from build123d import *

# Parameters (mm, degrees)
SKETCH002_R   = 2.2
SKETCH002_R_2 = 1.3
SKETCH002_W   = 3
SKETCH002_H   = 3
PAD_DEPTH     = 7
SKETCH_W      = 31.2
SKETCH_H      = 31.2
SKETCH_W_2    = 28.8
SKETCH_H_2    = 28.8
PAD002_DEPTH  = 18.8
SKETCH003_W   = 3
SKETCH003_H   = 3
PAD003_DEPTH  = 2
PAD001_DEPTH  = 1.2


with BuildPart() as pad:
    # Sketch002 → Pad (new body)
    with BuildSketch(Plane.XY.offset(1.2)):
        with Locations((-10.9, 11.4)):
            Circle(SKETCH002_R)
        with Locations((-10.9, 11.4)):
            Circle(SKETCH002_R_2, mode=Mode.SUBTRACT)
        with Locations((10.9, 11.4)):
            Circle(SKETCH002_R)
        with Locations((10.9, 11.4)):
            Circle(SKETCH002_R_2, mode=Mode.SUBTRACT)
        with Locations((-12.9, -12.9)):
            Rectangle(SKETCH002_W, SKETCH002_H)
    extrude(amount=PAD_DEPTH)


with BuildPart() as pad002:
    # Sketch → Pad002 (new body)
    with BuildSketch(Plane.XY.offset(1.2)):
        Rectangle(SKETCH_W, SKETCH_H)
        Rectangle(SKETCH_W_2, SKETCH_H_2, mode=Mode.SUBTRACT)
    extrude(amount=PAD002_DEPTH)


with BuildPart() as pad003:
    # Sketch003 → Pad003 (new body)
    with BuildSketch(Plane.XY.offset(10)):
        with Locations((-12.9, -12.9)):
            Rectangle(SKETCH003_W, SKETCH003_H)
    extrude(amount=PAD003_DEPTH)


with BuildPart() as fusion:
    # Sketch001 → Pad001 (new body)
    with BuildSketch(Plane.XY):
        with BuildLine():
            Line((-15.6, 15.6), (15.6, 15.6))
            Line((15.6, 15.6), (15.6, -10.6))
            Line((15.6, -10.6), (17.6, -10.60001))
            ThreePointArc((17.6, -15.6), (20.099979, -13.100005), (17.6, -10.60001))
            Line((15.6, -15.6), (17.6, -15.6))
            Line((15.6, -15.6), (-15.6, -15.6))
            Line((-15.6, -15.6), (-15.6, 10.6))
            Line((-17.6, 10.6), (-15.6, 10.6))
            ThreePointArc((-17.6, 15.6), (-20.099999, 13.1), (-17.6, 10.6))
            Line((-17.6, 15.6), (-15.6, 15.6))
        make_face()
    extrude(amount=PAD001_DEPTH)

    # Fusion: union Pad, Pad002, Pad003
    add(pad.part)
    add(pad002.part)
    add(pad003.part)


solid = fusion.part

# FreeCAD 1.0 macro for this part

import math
import FreeCAD as App
import Part
import Sketcher

V = App.Vector
Q = App.Units.Quantity


def add_polygon(sketch, points):
    """Adds a closed chain of lines whose ends are joined by coincident constraints."""
    first, n = sketch.GeometryCount, len(points)
    for a, b in zip(points, points[1:] + points[:1]):
        sketch.addGeometry(Part.LineSegment(App.Vector(*a, 0), App.Vector(*b, 0)), False)
    for i in range(n):
        sketch.addConstraint(Sketcher.Constraint("Coincident", first + i, 2, first + (i + 1) % n, 1))

doc = App.newDocument("Part")
body = doc.addObject("PartDesign::Body", "Body")
body.AllowCompound = True

# Sketch on XY plane
sketch1 = body.newObject("Sketcher::SketchObject", "Sketch")
sketch1.AttachmentSupport = (doc.getObject("XY_Plane"), [""])
sketch1.MapMode = "FlatFace"
sketch1.AttachmentOffset = App.Placement(V(0, 0, 1.2), App.Rotation())
sketch1.addGeometry(Part.Circle(V(-10.9, 11.4, 0), V(0, 0, 1), 2.2), False)  # 0
sketch1.addGeometry(Part.Circle(V(-10.9, 11.4, 0), V(0, 0, 1), 1.3), False)  # 1
sketch1.addGeometry(Part.Circle(V(10.9, 11.4, 0), V(0, 0, 1), 2.2), False)  # 2
sketch1.addGeometry(Part.Circle(V(10.9, 11.4, 0), V(0, 0, 1), 1.3), False)  # 3
add_polygon(sketch1, [(-14.4, -11.4), (-14.4, -14.4), (-11.4, -14.4), (-11.4, -11.4)])  # lines 4-7
sketch1.addConstraint([
    Sketcher.Constraint("Vertical", 4),
    Sketcher.Constraint("Horizontal", 5),
    Sketcher.Constraint("Vertical", 6),
    Sketcher.Constraint("Horizontal", 7),
    Sketcher.Constraint("Coincident", 1, 3, 0, 3),
    Sketcher.Constraint("Coincident", 3, 3, 2, 3),
    Sketcher.Constraint("Equal", 0, 2),
    Sketcher.Constraint("Equal", 1, 3),
    Sketcher.Constraint("Symmetric", 0, 3, 2, 3, -2),
    Sketcher.Constraint("Equal", 7, 4),
    Sketcher.Constraint("Diameter", 0, Q("4.4 mm")),
    Sketcher.Constraint("Diameter", 1, Q("2.6 mm")),
    Sketcher.Constraint("DistanceX", 5, 1, 5, 2, Q("3 mm")),
    Sketcher.Constraint("DistanceX", 0, 3, -1, 1, Q("10.9 mm")),
    Sketcher.Constraint("DistanceY", -1, 1, 0, 3, Q("11.4 mm")),
    Sketcher.Constraint("DistanceX", 4, 2, -1, 1, Q("14.4 mm")),
    Sketcher.Constraint("DistanceY", 4, 2, -1, 1, Q("14.4 mm")),
])
pad1 = body.newObject("PartDesign::Pad", "Pad")
pad1.Profile = sketch1
pad1.Length = 7
body2 = doc.addObject("PartDesign::Body", "Body001")

# Sketch on XY plane
sketch2 = body2.newObject("Sketcher::SketchObject", "Sketch001")
sketch2.AttachmentSupport = (doc.getObject("XY_Plane001"), [""])
sketch2.MapMode = "FlatFace"
sketch2.AttachmentOffset = App.Placement(V(0, 0, 1.2), App.Rotation())
add_polygon(sketch2, [(-16, 16), (-16, -16), (16, -16), (16, 16)])  # lines 0-3
add_polygon(sketch2, [(14, -14), (-14, -14), (-14, 14), (14, 14)])  # lines 4-7
sketch2.addConstraint([
    Sketcher.Constraint("Vertical", 0),
    Sketcher.Constraint("Horizontal", 1),
    Sketcher.Constraint("Vertical", 2),
    Sketcher.Constraint("Horizontal", 3),
    Sketcher.Constraint("Horizontal", 4),
    Sketcher.Constraint("Vertical", 5),
    Sketcher.Constraint("Horizontal", 6),
    Sketcher.Constraint("Vertical", 7),
    Sketcher.Constraint("Symmetric", 0, 2, 2, 2, -1, 1),
    Sketcher.Constraint("Symmetric", 4, 2, 6, 2, -1, 1),
    Sketcher.Constraint("Equal", 3, 0),
    Sketcher.Constraint("Equal", 6, 5),
    Sketcher.Constraint("DistanceX", 1, 1, 1, 2, Q("31.2 mm")),
    Sketcher.Constraint("DistanceX", 4, 2, 4, 1, Q("28.8 mm")),
])
pad2 = body2.newObject("PartDesign::Pad", "Pad001")
pad2.Profile = sketch2
pad2.Length = 18.8
body3 = doc.addObject("PartDesign::Body", "Body002")

# Sketch on XY plane
sketch3 = body3.newObject("Sketcher::SketchObject", "Sketch002")
sketch3.AttachmentSupport = (doc.getObject("XY_Plane002"), [""])
sketch3.MapMode = "FlatFace"
sketch3.AttachmentOffset = App.Placement(V(0, 0, 10), App.Rotation())
add_polygon(sketch3, [(-14.4, -11.4), (-14.4, -14.4), (-11.4, -14.4), (-11.4, -11.4)])  # lines 0-3
sketch3.addConstraint([
    Sketcher.Constraint("Vertical", 0),
    Sketcher.Constraint("Horizontal", 1),
    Sketcher.Constraint("Vertical", 2),
    Sketcher.Constraint("Horizontal", 3),
    Sketcher.Constraint("Equal", 3, 0),
    Sketcher.Constraint("DistanceX", 1, 1, 1, 2, Q("3 mm")),
    Sketcher.Constraint("DistanceX", 0, 2, -1, 1, Q("14.4 mm")),
    Sketcher.Constraint("DistanceY", 0, 2, -1, 1, Q("14.4 mm")),
])
pad3 = body3.newObject("PartDesign::Pad", "Pad002")
pad3.Profile = sketch3
pad3.Length = 2
body4 = doc.addObject("PartDesign::Body", "Body003")

# Sketch on XY plane
sketch4 = body4.newObject("Sketcher::SketchObject", "Sketch003")
sketch4.AttachmentSupport = (doc.getObject("XY_Plane003"), [""])
sketch4.MapMode = "FlatFace"
sketch4.addGeometry([
    Part.LineSegment(V(15.6, -10.6, 0), V(15.6, 15.6, 0)),  # 0
    Part.LineSegment(V(15.6, 15.6, 0), V(-17.6, 15.6, 0)),  # 1
    Part.ArcOfCircle(Part.Circle(V(-17.6, 13.1, 0), V(0, 0, 1), 2.5), math.radians(90), math.radians(270)),  # 2
    Part.LineSegment(V(-17.6, 10.6, 0), V(-15.6, 10.6, 0)),  # 3
    Part.LineSegment(V(-15.6, 10.6, 0), V(-15.6, -15.6, 0)),  # 4
    Part.LineSegment(V(-15.6, -15.6, 0), V(17.6, -15.6, 0)),  # 5
    Part.ArcOfCircle(Part.Circle(V(17.6, -13.1, 0), V(0, 0, 1), 2.5), math.radians(-90), math.radians(90)),  # 6
    Part.LineSegment(V(17.6, -10.6, 0), V(15.6, -10.6, 0)),  # 7
], False)
sketch4.addConstraint([
    Sketcher.Constraint("Coincident", 0, 2, 1, 1),
    Sketcher.Constraint("Tangent", 1, 2, 2, 1),
    Sketcher.Constraint("Tangent", 2, 2, 3, 1),
    Sketcher.Constraint("Coincident", 3, 2, 4, 1),
    Sketcher.Constraint("Coincident", 4, 2, 5, 1),
    Sketcher.Constraint("Coincident", 5, 2, 6, 1),
    Sketcher.Constraint("Tangent", 6, 2, 7, 1),
    Sketcher.Constraint("Coincident", 7, 2, 0, 1),
    Sketcher.Constraint("Vertical", 0),
    Sketcher.Constraint("Horizontal", 1),
    Sketcher.Constraint("Horizontal", 3),
    Sketcher.Constraint("Vertical", 4),
    Sketcher.Constraint("Horizontal", 5),
    Sketcher.Constraint("Symmetric", 0, 2, 4, 2, -1, 1),
    Sketcher.Constraint("Vertical", 5, 2, 6, 2),
    Sketcher.Constraint("Equal", 1, 5),
    Sketcher.Constraint("Equal", 0, 4),
    Sketcher.Constraint("Radius", 2, Q("2.5 mm")),
    Sketcher.Constraint("DistanceX", 3, 1, 3, 2, Q("2 mm")),
    Sketcher.Constraint("DistanceX", 1, 2, 1, 1, Q("33.2 mm")),
    Sketcher.Constraint("DistanceY", 0, 1, 0, 2, Q("26.2 mm")),
    Sketcher.Constraint("Radius", 6, Q("2.499995 mm")),
])
pad4 = body4.newObject("PartDesign::Pad", "Pad003")
pad4.Profile = sketch4
pad4.Length = 1.2
doc.recompute()

boolean = body4.newObject("PartDesign::Boolean", "Boolean")
boolean.Type = "Fuse"
boolean.addObjects([body])
doc.recompute()

boolean2 = body4.newObject("PartDesign::Boolean", "Boolean001")
boolean2.Type = "Fuse"
boolean2.addObjects([body2])
doc.recompute()

boolean3 = body4.newObject("PartDesign::Boolean", "Boolean002")
boolean3.Type = "Fuse"
boolean3.addObjects([body3])

doc.recompute()
